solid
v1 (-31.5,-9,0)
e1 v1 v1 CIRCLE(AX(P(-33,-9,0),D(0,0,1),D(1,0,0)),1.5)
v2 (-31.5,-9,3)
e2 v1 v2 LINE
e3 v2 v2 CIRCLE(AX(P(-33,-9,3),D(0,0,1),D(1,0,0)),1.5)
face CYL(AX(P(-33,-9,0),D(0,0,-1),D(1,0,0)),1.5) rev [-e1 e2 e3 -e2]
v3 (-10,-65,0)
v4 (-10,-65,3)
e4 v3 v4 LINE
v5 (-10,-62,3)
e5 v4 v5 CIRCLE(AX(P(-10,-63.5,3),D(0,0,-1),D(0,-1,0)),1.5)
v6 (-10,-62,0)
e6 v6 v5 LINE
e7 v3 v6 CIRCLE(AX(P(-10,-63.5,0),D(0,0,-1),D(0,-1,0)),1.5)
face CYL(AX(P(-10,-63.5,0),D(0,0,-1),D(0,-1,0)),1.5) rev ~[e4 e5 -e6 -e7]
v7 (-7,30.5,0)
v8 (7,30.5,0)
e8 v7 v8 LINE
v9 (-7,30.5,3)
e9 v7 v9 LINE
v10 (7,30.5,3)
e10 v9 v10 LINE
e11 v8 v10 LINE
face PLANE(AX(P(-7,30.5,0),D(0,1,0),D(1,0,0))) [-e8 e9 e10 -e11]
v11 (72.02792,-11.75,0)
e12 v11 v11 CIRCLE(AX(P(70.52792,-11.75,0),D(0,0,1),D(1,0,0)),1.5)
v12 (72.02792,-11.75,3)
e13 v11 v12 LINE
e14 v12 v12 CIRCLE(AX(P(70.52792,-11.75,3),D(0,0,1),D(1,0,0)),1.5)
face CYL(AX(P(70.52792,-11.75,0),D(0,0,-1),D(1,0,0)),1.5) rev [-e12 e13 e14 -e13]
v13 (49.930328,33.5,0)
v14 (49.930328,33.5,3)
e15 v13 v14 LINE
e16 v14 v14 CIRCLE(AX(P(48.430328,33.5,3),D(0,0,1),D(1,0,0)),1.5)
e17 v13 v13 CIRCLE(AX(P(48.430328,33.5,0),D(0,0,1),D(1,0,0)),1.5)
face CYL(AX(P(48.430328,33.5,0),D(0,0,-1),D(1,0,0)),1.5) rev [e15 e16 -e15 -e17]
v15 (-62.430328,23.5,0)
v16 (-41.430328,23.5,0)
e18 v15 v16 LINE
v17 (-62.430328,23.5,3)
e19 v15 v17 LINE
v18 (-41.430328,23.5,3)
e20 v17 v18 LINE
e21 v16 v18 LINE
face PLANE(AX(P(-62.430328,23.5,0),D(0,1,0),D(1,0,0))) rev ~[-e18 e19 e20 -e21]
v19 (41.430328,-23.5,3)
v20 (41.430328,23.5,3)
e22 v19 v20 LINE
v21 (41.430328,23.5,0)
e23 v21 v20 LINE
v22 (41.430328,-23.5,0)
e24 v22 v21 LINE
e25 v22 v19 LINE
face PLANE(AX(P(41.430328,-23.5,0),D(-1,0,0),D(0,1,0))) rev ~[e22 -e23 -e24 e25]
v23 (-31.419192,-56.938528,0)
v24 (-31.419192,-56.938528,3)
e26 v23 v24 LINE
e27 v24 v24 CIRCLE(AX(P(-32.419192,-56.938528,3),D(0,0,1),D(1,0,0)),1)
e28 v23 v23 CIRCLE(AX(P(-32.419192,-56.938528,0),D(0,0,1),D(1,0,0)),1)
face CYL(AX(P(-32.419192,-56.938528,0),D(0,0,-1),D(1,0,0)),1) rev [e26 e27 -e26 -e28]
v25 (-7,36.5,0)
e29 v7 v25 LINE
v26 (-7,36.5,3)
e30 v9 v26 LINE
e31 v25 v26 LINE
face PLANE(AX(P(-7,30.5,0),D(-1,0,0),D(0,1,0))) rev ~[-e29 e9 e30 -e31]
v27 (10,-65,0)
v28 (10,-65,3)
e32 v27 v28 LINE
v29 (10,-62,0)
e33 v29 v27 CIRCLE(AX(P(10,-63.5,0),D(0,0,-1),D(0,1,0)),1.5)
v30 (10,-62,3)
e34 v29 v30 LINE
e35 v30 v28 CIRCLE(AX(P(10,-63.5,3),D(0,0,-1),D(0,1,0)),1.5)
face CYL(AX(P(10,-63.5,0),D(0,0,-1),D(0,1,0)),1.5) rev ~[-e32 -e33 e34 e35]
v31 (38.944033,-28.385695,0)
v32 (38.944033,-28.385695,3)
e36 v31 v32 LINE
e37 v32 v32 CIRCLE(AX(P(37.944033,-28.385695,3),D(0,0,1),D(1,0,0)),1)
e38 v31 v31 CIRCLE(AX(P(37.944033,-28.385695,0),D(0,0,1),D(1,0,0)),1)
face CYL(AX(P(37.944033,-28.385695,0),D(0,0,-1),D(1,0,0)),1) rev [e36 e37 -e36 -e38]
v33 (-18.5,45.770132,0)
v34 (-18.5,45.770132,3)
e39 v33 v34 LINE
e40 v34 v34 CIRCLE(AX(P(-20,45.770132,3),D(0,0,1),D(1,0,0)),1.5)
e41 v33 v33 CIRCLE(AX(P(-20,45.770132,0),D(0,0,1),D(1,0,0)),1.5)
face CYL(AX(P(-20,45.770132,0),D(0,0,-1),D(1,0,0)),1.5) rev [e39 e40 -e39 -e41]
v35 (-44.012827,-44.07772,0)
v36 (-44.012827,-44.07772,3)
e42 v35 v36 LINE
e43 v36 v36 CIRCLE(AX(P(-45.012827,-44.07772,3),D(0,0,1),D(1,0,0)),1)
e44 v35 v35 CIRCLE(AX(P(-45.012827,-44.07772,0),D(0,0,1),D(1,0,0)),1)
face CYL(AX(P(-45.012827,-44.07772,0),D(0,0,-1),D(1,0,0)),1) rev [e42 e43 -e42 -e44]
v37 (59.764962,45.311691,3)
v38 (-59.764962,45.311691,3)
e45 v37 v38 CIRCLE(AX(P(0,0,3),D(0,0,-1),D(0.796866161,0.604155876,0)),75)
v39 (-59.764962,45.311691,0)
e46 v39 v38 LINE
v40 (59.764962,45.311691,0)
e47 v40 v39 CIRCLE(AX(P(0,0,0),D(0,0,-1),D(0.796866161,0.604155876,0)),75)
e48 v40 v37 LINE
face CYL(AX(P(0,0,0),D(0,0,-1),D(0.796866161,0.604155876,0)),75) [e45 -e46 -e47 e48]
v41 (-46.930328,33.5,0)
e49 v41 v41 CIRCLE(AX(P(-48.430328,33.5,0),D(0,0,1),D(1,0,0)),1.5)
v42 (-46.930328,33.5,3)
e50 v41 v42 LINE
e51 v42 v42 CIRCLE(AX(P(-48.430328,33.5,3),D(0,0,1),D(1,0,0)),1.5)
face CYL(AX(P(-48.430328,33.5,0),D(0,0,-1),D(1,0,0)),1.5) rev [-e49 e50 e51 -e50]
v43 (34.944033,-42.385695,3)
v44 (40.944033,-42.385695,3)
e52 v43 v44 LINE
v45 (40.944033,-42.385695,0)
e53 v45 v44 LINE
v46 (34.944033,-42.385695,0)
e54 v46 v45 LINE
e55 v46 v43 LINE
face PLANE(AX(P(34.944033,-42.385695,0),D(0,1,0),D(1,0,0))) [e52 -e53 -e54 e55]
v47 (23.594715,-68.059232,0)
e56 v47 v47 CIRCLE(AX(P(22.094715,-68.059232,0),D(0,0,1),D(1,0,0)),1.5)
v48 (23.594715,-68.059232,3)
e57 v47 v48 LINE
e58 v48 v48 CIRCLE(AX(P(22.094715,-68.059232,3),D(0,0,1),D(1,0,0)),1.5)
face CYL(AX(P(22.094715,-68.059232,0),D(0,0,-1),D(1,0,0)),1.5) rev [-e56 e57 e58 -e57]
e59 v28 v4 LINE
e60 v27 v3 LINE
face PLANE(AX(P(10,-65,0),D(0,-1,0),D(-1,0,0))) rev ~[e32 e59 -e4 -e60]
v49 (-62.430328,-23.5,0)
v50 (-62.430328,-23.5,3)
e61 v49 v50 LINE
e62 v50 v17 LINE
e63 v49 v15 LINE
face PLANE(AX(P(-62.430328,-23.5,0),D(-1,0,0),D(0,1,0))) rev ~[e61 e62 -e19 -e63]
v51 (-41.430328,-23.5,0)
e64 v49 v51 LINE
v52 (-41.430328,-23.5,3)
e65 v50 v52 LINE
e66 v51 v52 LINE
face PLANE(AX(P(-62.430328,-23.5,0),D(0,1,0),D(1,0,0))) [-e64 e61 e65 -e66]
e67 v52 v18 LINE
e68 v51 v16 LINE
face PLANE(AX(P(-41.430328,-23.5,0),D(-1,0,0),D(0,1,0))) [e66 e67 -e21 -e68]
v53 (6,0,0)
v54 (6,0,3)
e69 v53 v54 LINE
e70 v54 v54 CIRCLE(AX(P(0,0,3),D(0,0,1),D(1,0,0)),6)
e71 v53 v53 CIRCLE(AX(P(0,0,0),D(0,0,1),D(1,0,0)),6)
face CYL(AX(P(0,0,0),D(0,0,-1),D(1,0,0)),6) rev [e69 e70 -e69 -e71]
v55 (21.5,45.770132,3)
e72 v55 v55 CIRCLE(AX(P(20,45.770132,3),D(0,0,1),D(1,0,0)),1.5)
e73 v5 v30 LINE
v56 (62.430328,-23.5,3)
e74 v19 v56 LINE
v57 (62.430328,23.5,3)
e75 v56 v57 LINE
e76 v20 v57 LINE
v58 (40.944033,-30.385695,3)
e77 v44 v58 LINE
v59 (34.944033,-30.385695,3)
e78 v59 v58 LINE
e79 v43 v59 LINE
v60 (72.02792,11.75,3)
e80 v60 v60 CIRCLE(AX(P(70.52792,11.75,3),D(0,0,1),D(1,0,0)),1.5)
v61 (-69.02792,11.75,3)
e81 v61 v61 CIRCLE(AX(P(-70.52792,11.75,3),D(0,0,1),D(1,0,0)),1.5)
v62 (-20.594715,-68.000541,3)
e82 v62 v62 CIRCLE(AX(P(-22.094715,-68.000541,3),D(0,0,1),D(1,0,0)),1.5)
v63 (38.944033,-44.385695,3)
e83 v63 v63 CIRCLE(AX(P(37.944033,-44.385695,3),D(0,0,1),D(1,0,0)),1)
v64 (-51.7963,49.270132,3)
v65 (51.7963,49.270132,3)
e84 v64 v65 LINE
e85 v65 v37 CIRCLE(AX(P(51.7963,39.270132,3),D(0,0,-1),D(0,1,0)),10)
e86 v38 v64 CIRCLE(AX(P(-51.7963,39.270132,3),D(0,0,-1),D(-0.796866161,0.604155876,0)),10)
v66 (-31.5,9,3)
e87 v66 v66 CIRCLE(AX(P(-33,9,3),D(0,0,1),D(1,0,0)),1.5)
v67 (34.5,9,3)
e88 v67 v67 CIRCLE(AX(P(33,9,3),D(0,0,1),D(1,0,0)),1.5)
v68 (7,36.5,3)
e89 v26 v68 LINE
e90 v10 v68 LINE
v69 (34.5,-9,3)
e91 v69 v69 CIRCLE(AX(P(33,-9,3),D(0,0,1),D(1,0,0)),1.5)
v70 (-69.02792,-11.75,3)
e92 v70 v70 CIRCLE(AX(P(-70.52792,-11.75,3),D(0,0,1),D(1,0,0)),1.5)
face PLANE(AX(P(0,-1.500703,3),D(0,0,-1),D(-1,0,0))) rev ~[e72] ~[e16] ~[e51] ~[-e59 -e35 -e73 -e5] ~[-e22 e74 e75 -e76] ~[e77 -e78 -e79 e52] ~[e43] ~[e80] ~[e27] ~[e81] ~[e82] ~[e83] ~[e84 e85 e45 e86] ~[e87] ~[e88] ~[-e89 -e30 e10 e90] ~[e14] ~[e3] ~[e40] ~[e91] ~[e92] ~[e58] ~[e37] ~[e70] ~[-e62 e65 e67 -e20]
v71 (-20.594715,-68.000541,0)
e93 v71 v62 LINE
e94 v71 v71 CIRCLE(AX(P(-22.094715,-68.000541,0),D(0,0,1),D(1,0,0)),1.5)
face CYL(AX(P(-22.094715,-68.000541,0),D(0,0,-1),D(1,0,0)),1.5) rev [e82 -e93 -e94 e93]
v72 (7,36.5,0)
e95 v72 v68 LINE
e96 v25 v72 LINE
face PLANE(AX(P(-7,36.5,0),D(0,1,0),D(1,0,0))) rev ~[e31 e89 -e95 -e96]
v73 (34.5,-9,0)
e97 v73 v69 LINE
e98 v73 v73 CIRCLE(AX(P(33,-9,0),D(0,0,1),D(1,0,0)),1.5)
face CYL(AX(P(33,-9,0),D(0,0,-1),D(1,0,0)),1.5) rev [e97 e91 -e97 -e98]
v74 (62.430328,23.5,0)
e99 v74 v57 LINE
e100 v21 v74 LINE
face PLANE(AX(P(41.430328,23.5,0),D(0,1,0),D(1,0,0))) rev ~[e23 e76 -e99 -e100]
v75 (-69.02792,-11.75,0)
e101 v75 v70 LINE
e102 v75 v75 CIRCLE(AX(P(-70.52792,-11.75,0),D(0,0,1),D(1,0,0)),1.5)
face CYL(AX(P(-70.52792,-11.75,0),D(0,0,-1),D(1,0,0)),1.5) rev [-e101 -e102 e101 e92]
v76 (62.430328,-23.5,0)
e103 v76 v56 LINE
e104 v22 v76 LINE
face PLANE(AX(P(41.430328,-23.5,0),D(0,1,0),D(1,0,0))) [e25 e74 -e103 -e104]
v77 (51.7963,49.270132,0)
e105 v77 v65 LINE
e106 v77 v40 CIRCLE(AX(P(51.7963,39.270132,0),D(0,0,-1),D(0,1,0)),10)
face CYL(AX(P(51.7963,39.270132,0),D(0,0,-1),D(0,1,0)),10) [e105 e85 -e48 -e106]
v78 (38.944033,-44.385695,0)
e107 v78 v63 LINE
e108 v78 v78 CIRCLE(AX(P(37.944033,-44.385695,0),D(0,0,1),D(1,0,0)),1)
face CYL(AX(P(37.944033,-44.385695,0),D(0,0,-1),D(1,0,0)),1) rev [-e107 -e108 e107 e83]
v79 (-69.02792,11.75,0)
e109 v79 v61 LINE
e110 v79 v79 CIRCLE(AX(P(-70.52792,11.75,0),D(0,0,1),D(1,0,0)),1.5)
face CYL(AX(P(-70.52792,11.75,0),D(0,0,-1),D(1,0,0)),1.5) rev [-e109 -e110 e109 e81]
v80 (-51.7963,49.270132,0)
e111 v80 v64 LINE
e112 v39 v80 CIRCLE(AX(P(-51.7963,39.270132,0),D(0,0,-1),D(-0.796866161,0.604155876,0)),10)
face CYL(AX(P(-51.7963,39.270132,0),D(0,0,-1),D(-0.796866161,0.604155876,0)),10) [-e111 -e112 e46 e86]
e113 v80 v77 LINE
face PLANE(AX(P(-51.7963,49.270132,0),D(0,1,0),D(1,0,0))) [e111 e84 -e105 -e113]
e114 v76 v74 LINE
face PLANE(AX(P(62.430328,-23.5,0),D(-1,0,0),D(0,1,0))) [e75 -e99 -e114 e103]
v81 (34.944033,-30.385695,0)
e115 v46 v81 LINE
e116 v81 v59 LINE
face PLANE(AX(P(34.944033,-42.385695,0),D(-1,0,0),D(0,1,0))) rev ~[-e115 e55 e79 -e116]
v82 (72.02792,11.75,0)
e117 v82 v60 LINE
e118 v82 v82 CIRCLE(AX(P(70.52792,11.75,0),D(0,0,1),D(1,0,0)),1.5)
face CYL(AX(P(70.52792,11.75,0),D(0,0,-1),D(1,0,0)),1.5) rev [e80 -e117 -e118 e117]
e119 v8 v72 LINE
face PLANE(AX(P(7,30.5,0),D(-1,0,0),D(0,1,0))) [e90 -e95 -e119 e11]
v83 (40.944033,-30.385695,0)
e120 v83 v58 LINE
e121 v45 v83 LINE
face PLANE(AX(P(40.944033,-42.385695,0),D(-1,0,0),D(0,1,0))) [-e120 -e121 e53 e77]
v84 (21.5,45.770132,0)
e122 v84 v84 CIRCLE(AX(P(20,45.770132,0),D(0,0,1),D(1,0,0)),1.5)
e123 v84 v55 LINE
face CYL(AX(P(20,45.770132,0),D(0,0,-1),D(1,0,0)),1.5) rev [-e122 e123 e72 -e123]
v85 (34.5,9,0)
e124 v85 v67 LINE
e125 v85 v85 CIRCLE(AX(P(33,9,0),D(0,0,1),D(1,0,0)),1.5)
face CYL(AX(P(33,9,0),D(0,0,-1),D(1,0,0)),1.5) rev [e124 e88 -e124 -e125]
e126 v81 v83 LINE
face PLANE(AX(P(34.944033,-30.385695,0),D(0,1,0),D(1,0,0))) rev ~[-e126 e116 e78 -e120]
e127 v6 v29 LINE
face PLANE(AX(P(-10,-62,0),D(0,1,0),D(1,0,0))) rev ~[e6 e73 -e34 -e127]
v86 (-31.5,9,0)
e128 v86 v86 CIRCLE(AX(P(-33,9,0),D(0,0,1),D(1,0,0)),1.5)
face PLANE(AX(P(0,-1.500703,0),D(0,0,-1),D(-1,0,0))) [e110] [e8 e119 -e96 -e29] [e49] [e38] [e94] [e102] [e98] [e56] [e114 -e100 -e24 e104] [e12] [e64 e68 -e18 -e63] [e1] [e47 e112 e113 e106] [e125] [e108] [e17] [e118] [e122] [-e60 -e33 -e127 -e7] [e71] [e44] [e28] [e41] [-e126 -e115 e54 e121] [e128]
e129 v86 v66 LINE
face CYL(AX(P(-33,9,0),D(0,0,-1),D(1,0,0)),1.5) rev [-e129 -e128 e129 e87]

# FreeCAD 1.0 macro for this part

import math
import FreeCAD as App
import Part
import Sketcher

V = App.Vector


def add_polygon(sketch, points):
    """Adds a closed chain of lines whose ends are joined by coincident constraints."""
    first, n = sketch.GeometryCount, len(points)
    for a, b in zip(points, points[1:] + points[:1]):
        sketch.addGeometry(Part.LineSegment(App.Vector(*a, 0), App.Vector(*b, 0)), False)
    for i in range(n):
        sketch.addConstraint(Sketcher.Constraint("Coincident", first + i, 2, first + (i + 1) % n, 1))

doc = App.newDocument("Part")
params = doc.addObject("Spreadsheet::Sheet", "Params")
for row, (alias, value) in enumerate([
    ("sketch1_diameter", "2 mm"),
    ("sketch1_diameter2", "3 mm"),
    ("sketch1_diameter3", "12 mm"),
    ("sketch1_radius", "10 mm"),
    ("sketch1_radius2", "75 mm"),
    ("pad1_length", "3 mm"),
], start=1):
    params.set(f"A{row}", alias)
    params.set(f"B{row}", "=" + value)
    params.setAlias(f"B{row}", alias)

body = doc.addObject("PartDesign::Body", "Body")

# Sketch on XY plane
sketch1 = doc.addObject("Sketcher::SketchObject", "Sketch")
body.addObject(sketch1)
sketch1.AttachmentSupport = (doc.XY_Plane, [""])
sketch1.MapMode = "FlatFace"
sketch1.addGeometry(Part.LineSegment(V(51.7963, 49.270132, 0), V(-51.7963, 49.270132, 0)), False)  # 0
sketch1.addGeometry(Part.ArcOfCircle(Part.Circle(V(-51.7963, 39.270132, 0), V(0, 0, 1), 10), math.radians(90), math.radians(142.831876)), False)  # 1
sketch1.addGeometry(Part.ArcOfCircle(Part.Circle(V(0, 0, 0), V(0, 0, 1), 75), math.radians(142.831876), math.radians(397.168124)), False)  # 2
sketch1.addGeometry(Part.ArcOfCircle(Part.Circle(V(51.7963, 39.270132, 0), V(0, 0, 1), 10), math.radians(37.168124), math.radians(90)), False)  # 3
sketch1.addGeometry(Part.Circle(V(37.944033, -44.385695, 0), V(0, 0, 1), 1), False)  # 4
sketch1.addGeometry(Part.Circle(V(22.094715, -68.059232, 0), V(0, 0, 1), 1.5), False)  # 5
add_polygon(sketch1, [(34.944033, -42.385695), (34.944033, -30.385695), (40.944033, -30.385695), (40.944033, -42.385695)])  # lines 6-9
sketch1.addGeometry(Part.Circle(V(37.944033, -28.385695, 0), V(0, 0, 1), 1), False)  # 10
sketch1.addGeometry(Part.Circle(V(70.52792, -11.75, 0), V(0, 0, 1), 1.5), False)  # 11
sketch1.addGeometry(Part.LineSegment(V(-10, -62, 0), V(10, -62, 0)), False)  # 12
sketch1.addGeometry(Part.ArcOfCircle(Part.Circle(V(10, -63.5, 0), V(0, 0, 1), 1.5), math.radians(-90), math.radians(90)), False)  # 13
sketch1.addGeometry(Part.LineSegment(V(10, -65, 0), V(-10, -65, 0)), False)  # 14
sketch1.addGeometry(Part.ArcOfCircle(Part.Circle(V(-10, -63.5, 0), V(0, 0, 1), 1.5), math.radians(90), math.radians(270)), False)  # 15
sketch1.addGeometry(Part.Circle(V(-22.094715, -68.000541, 0), V(0, 0, 1), 1.5), False)  # 16
sketch1.addGeometry(Part.Circle(V(-32.419192, -56.938528, 0), V(0, 0, 1), 1), False)  # 17
sketch1.addGeometry(Part.Circle(V(-45.012827, -44.07772, 0), V(0, 0, 1), 1), False)  # 18
sketch1.addGeometry(Part.Circle(V(-70.52792, -11.75, 0), V(0, 0, 1), 1.5), False)  # 19
add_polygon(sketch1, [(41.430328, -23.5), (41.430328, 23.5), (62.430328, 23.5), (62.430328, -23.5)])  # lines 20-23
sketch1.addGeometry(Part.Circle(V(70.52792, 11.75, 0), V(0, 0, 1), 1.5), False)  # 24
sketch1.addGeometry(Part.Circle(V(33, -9, 0), V(0, 0, 1), 1.5), False)  # 25
sketch1.addGeometry(Part.Circle(V(33, 9, 0), V(0, 0, 1), 1.5), False)  # 26
sketch1.addGeometry(Part.Circle(V(48.430328, 33.5, 0), V(0, 0, 1), 1.5), False)  # 27
sketch1.addGeometry(Part.Circle(V(20, 45.770132, 0), V(0, 0, 1), 1.5), False)  # 28
sketch1.addGeometry(Part.Circle(V(0, 0, 0), V(0, 0, 1), 6), False)  # 29
sketch1.addGeometry(Part.Circle(V(-33, -9, 0), V(0, 0, 1), 1.5), False)  # 30
sketch1.addGeometry(Part.Circle(V(-33, 9, 0), V(0, 0, 1), 1.5), False)  # 31
add_polygon(sketch1, [(-62.430328, -23.5), (-62.430328, 23.5), (-41.430328, 23.5), (-41.430328, -23.5)])  # lines 32-35
sketch1.addGeometry(Part.Circle(V(-70.52792, 11.75, 0), V(0, 0, 1), 1.5), False)  # 36
add_polygon(sketch1, [(-7, 30.5), (-7, 36.5), (7, 36.5), (7, 30.5)])  # lines 37-40
sketch1.addGeometry(Part.Circle(V(-20, 45.770132, 0), V(0, 0, 1), 1.5), False)  # 41
sketch1.addGeometry(Part.Circle(V(-48.430328, 33.5, 0), V(0, 0, 1), 1.5), False)  # 42
sketch1.addConstraint([
    Sketcher.Constraint("Tangent", 0, 2, 1, 1),
    Sketcher.Constraint("Tangent", 1, 2, 2, 1),
    Sketcher.Constraint("Tangent", 2, 2, 3, 1),
    Sketcher.Constraint("Tangent", 3, 2, 0, 1),
    Sketcher.Constraint("Tangent", 12, 2, 13, 2),
    Sketcher.Constraint("Tangent", 13, 1, 14, 1),
    Sketcher.Constraint("Tangent", 14, 2, 15, 2),
    Sketcher.Constraint("Tangent", 15, 1, 12, 1),
    Sketcher.Constraint("Horizontal", 0),
    Sketcher.Constraint("Vertical", 6),
    Sketcher.Constraint("Horizontal", 7),
    Sketcher.Constraint("Vertical", 8),
    Sketcher.Constraint("Horizontal", 9),
    Sketcher.Constraint("Horizontal", 12),
    Sketcher.Constraint("Horizontal", 14),
    Sketcher.Constraint("Vertical", 20),
    Sketcher.Constraint("Horizontal", 21),
    Sketcher.Constraint("Vertical", 22),
    Sketcher.Constraint("Horizontal", 23),
    Sketcher.Constraint("Vertical", 32),
    Sketcher.Constraint("Horizontal", 33),
    Sketcher.Constraint("Vertical", 34),
    Sketcher.Constraint("Horizontal", 35),
    Sketcher.Constraint("Vertical", 37),
    Sketcher.Constraint("Horizontal", 38),
    Sketcher.Constraint("Vertical", 39),
    Sketcher.Constraint("Horizontal", 40),
    Sketcher.Constraint("Coincident", 2, 3, -1, 1),
    Sketcher.Constraint("Coincident", 29, 3, -1, 1),
    Sketcher.Constraint("Equal", 1, 3),
    Sketcher.Constraint("Equal", 4, 10),
    Sketcher.Constraint("Equal", 5, 11),
    Sketcher.Constraint("Equal", 11, 13),
    Sketcher.Constraint("Equal", 15, 16),
    Sketcher.Constraint("Equal", 10, 17),
    Sketcher.Constraint("Equal", 17, 18),
    Sketcher.Constraint("Equal", 16, 19),
    Sketcher.Constraint("Equal", 19, 24),
    Sketcher.Constraint("Equal", 24, 25),
    Sketcher.Constraint("Equal", 25, 26),
    Sketcher.Constraint("Equal", 26, 27),
    Sketcher.Constraint("Equal", 27, 28),
    Sketcher.Constraint("Equal", 28, 30),
    Sketcher.Constraint("Equal", 30, 31),
    Sketcher.Constraint("Equal", 31, 36),
    Sketcher.Constraint("Equal", 36, 41),
    Sketcher.Constraint("Equal", 41, 42),
    Sketcher.Constraint("Symmetric", 19, 3, 24, 3, -1, 1),
    Sketcher.Constraint("Symmetric", 26, 3, 30, 3, -1, 1),
    Sketcher.Constraint("Symmetric", 25, 3, 31, 3, -1, 1),
    Sketcher.Constraint("Symmetric", 11, 3, 36, 3, -1, 1),
    Sketcher.Constraint("Symmetric", 22, 2, 32, 2, -1, 1),
    Sketcher.Constraint("Symmetric", 20, 2, 34, 2, -1, 1),
    Sketcher.Constraint("Symmetric", 11, 3, 19, 3, -2),
    Sketcher.Constraint("Symmetric", 25, 3, 30, 3, -2),
    Sketcher.Constraint("Symmetric", 28, 3, 41, 3, -2),
    Sketcher.Constraint("Symmetric", 27, 3, 42, 3, -2),
    Sketcher.Constraint("Horizontal", 21, 2, 32, 2),
    Sketcher.Constraint("Vertical", 4, 3, 10, 3),
    Sketcher.Constraint("Equal", 9, 37),
    Sketcher.Constraint("Diameter", 4, 2.0),
    Sketcher.Constraint("Diameter", 5, 3.0),
    Sketcher.Constraint("Diameter", 29, 12.0),
    Sketcher.Constraint("Radius", 1, 10.0),
    Sketcher.Constraint("Radius", 2, 75.0),
    Sketcher.Constraint("DistanceX", 7, 1, 7, 2, 6.0),
    Sketcher.Constraint("DistanceX", 12, 1, 12, 2, 20.0),
    Sketcher.Constraint("DistanceX", 21, 1, 21, 2, 21.0),
    Sketcher.Constraint("DistanceX", 38, 1, 38, 2, 14.0),
    Sketcher.Constraint("DistanceY", 6, 1, 6, 2, 12.0),
    Sketcher.Constraint("DistanceY", 20, 1, 20, 2, 47.0),
    Sketcher.Constraint("DistanceX", -1, 1, 13, 3, 10.0),
    Sketcher.Constraint("DistanceX", -1, 1, 25, 3, 33.0),
    Sketcher.Constraint("DistanceY", 25, 3, -1, 1, 9.0),
    Sketcher.Constraint("DistanceX", -1, 1, 28, 3, 20.0),
    Sketcher.Constraint("DistanceY", 12, 2, -1, 1, 62.0),
    Sketcher.Constraint("DistanceX", 37, 2, -1, 1, 7.0),
    Sketcher.Constraint("DistanceY", 4, 3, 10, 3, 16.0),
    Sketcher.Constraint("DistanceX", 6, 2, 10, 3, 3.0),
    Sketcher.Constraint("DistanceY", 6, 2, 10, 3, 2.0),
    Sketcher.Constraint("DistanceX", 20, 2, 27, 3, 7.0),
    Sketcher.Constraint("DistanceY", 20, 2, 27, 3, 10.0),
    Sketcher.Constraint("DistanceY", 33, 2, 37, 2, 13.0),
    Sketcher.Constraint("DistanceY", 11, 3, 24, 3, 23.5),
    Sketcher.Constraint("DistanceY", 3, 3, 28, 3, 6.5),
    Sketcher.Constraint("DistanceX", 0, 2, 0, 1, 103.592601),
    Sketcher.Constraint("DistanceX", 18, 3, 34, 2, 3.582499),
    Sketcher.Constraint("DistanceY", 5, 3, -1, 1, 68.059232),
    Sketcher.Constraint("DistanceX", -1, 1, 11, 3, 70.52792),
    Sketcher.Constraint("DistanceY", 16, 3, -1, 1, 68.000541),
    Sketcher.Constraint("DistanceY", 17, 3, -1, 1, 56.938528),
    Sketcher.Constraint("DistanceY", 18, 3, -1, 1, 44.07772),
    Sketcher.Constraint("DistanceX", -1, 1, 27, 3, 48.430328),
    Sketcher.Constraint("DistanceX", 16, 3, 5, 3, 44.18943),
    Sketcher.Constraint("DistanceX", 18, 3, 16, 3, 22.918112),
    Sketcher.Constraint("DistanceX", -1, 1, 4, 3, 37.944033),
    Sketcher.Constraint("DistanceY", 4, 3, -1, 1, 44.385695),
    Sketcher.Constraint("DistanceX", 17, 3, -1, 1, 32.419192),
])
sketch1.setExpression("Constraints[76]", "Params.sketch1_diameter")
sketch1.setExpression("Constraints[77]", "Params.sketch1_diameter2")
sketch1.setExpression("Constraints[78]", "Params.sketch1_diameter3")
sketch1.setExpression("Constraints[79]", "Params.sketch1_radius")
sketch1.setExpression("Constraints[80]", "Params.sketch1_radius2")
pad1 = doc.addObject("PartDesign::Pad", "Pad")
body.addObject(pad1)
pad1.Profile = sketch1
pad1.setExpression("Length", "Params.pad1_length")

doc.recompute()
